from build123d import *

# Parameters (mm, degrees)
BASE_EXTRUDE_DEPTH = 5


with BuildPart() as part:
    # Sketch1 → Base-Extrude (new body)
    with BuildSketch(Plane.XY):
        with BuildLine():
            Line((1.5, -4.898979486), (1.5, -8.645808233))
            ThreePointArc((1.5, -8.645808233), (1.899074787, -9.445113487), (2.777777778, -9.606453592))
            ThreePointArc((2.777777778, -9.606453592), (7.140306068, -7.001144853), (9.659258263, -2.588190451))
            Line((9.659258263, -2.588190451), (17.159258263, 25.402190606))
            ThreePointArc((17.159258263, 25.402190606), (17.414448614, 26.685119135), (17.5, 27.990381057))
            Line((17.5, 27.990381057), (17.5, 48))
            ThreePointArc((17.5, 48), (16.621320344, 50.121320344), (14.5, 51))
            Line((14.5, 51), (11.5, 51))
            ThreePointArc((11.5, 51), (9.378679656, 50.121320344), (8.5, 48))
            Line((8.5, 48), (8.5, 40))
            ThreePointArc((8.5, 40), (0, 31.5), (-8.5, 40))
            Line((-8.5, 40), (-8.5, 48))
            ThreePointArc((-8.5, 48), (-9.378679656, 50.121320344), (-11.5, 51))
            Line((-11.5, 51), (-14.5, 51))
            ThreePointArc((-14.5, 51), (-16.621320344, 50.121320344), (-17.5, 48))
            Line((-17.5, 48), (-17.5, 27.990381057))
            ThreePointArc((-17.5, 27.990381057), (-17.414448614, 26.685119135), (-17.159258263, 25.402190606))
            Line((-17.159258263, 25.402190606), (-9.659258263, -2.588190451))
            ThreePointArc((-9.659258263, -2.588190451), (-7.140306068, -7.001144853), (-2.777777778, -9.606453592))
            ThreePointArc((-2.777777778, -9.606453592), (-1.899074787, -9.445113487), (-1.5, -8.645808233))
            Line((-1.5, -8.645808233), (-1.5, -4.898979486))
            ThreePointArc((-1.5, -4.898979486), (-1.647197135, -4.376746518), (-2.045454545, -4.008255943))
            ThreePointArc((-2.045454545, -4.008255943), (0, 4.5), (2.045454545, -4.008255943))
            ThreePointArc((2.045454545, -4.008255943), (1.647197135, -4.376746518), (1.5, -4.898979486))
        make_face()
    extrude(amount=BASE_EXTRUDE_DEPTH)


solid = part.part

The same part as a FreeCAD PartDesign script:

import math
import FreeCAD as App
import Part
import Sketcher

V = App.Vector
Q = App.Units.Quantity

doc = App.newDocument("Part")
body = doc.addObject("PartDesign::Body", "Body")

# Sketch on XY plane
sketch1 = doc.addObject("Sketcher::SketchObject", "Sketch")
body.addObject(sketch1)
sketch1.AttachmentSupport = (doc.XY_Plane, [""])
sketch1.MapMode = "FlatFace"
sketch1.addGeometry([
    Part.LineSegment(V(1.5, -4.9, 0), V(1.5, -8.6, 0)),  # 0
    Part.ArcOfCircle(Part.Circle(V(2.5, -8.6, 0), V(0, 0, 1), 1), math.radians(180), math.radians(286)),  # 1
    Part.ArcOfCircle(Part.Circle(V(0, 0, 0), V(0, 0, 1), 10), math.radians(-74), math.radians(-15)),  # 2
    Part.LineSegment(V(9.7, -2.6, 0), V(17.2, 25.4, 0)),  # 3
    Part.ArcOfCircle(Part.Circle(V(7.5, 28, 0), V(0, 0, 1), 10), math.radians(-15), math.radians(0)),  # 4
    Part.LineSegment(V(17.5, 28, 0), V(17.5, 48, 0)),  # 5
    Part.ArcOfCircle(Part.Circle(V(14.5, 48, 0), V(0, 0, 1), 3), math.radians(0), math.radians(90)),  # 6
    Part.LineSegment(V(14.5, 51, 0), V(11.5, 51, 0)),  # 7
    Part.ArcOfCircle(Part.Circle(V(11.5, 48, 0), V(0, 0, 1), 3), math.radians(90), math.radians(180)),  # 8
    Part.LineSegment(V(8.5, 48, 0), V(8.5, 40, 0)),  # 9
    Part.ArcOfCircle(Part.Circle(V(0, 40, 0), V(0, 0, 1), 8.5), math.radians(180), math.radians(360)),  # 10
    Part.LineSegment(V(-8.5, 40, 0), V(-8.5, 48, 0)),  # 11
    Part.ArcOfCircle(Part.Circle(V(-11.5, 48, 0), V(0, 0, 1), 3), math.radians(0), math.radians(90)),  # 12
    Part.LineSegment(V(-11.5, 51, 0), V(-14.5, 51, 0)),  # 13
    Part.ArcOfCircle(Part.Circle(V(-14.5, 48, 0), V(0, 0, 1), 3), math.radians(90), math.radians(180)),  # 14
    Part.LineSegment(V(-17.5, 48, 0), V(-17.5, 28, 0)),  # 15
    Part.ArcOfCircle(Part.Circle(V(-7.5, 28, 0), V(0, 0, 1), 10), math.radians(180), math.radians(195)),  # 16
    Part.LineSegment(V(-17.2, 25.4, 0), V(-9.7, -2.6, 0)),  # 17
    Part.ArcOfCircle(Part.Circle(V(0, 0, 0), V(0, 0, 1), 10), math.radians(-165), math.radians(-106)),  # 18
    Part.ArcOfCircle(Part.Circle(V(-2.5, -8.6, 0), V(0, 0, 1), 1), math.radians(-106), math.radians(0)),  # 19
    Part.LineSegment(V(-1.5, -8.6, 0), V(-1.5, -4.9, 0)),  # 20
    Part.ArcOfCircle(Part.Circle(V(-2.5, -4.9, 0), V(0, 0, 1), 1), math.radians(0), math.radians(63)),  # 21
    Part.ArcOfCircle(Part.Circle(V(0, 0, 0), V(0, 0, 1), 4.5), math.radians(-63), math.radians(243)),  # 22
    Part.ArcOfCircle(Part.Circle(V(2.5, -4.9, 0), V(0, 0, 1), 1), math.radians(117), math.radians(180)),  # 23
], False)
sketch1.addConstraint([
    Sketcher.Constraint("Tangent", 0, 2, 1, 1),
    Sketcher.Constraint("Tangent", 1, 2, 2, 1),
    Sketcher.Constraint("Tangent", 2, 2, 3, 1),
    Sketcher.Constraint("Tangent", 3, 2, 4, 1),
    Sketcher.Constraint("Tangent", 4, 2, 5, 1),
    Sketcher.Constraint("Tangent", 5, 2, 6, 1),
    Sketcher.Constraint("Tangent", 6, 2, 7, 1),
    Sketcher.Constraint("Tangent", 7, 2, 8, 1),
    Sketcher.Constraint("Tangent", 8, 2, 9, 1),
    Sketcher.Constraint("Tangent", 9, 2, 10, 2),
    Sketcher.Constraint("Tangent", 10, 1, 11, 1),
    Sketcher.Constraint("Tangent", 11, 2, 12, 1),
    Sketcher.Constraint("Tangent", 12, 2, 13, 1),
    Sketcher.Constraint("Tangent", 13, 2, 14, 1),
    Sketcher.Constraint("Tangent", 14, 2, 15, 1),
    Sketcher.Constraint("Tangent", 15, 2, 16, 1),
    Sketcher.Constraint("Tangent", 16, 2, 17, 1),
    Sketcher.Constraint("Tangent", 17, 2, 18, 1),
    Sketcher.Constraint("Tangent", 18, 2, 19, 1),
    Sketcher.Constraint("Tangent", 19, 2, 20, 1),
    Sketcher.Constraint("Tangent", 20, 2, 21, 1),
    Sketcher.Constraint("Tangent", 21, 2, 22, 2),
    Sketcher.Constraint("Tangent", 22, 1, 23, 1),
    Sketcher.Constraint("Tangent", 23, 2, 0, 1),
    Sketcher.Constraint("Vertical", 0),
    Sketcher.Constraint("Vertical", 5),
    Sketcher.Constraint("Horizontal", 7),
    Sketcher.Constraint("Vertical", 9),
    Sketcher.Constraint("Vertical", 11),
    Sketcher.Constraint("Horizontal", 13),
    Sketcher.Constraint("Vertical", 15),
    Sketcher.Constraint("Vertical", 20),
    Sketcher.Constraint("Coincident", 2, 3, -1, 1),
    Sketcher.Constraint("Coincident", 18, 3, -1, 1),
    Sketcher.Constraint("Coincident", 22, 3, -1, 1),
    Sketcher.Constraint("Equal", 2, 4),
    Sketcher.Constraint("Equal", 6, 8),
    Sketcher.Constraint("Equal", 8, 12),
    Sketcher.Constraint("Equal", 12, 14),
    Sketcher.Constraint("Equal", 4, 16),
    Sketcher.Constraint("Equal", 16, 18),
    Sketcher.Constraint("Equal", 1, 19),
    Sketcher.Constraint("Equal", 19, 21),
    Sketcher.Constraint("Equal", 21, 23),
    Sketcher.Constraint("Symmetric", 8, 3, 12, 3, -2),
    Sketcher.Constraint("Symmetric", 4, 3, 16, 3, -2),
    Sketcher.Constraint("Horizontal", 1, 3, 19, 3),
    Sketcher.Constraint("Radius", 1, Q("1 mm")),
    Sketcher.Constraint("Radius", 2, Q("10 mm")),
    Sketcher.Constraint("Radius", 6, Q("3 mm")),
    Sketcher.Constraint("Radius", 10, Q("8.5 mm")),
    Sketcher.Constraint("Radius", 22, Q("4.5 mm")),
    Sketcher.Constraint("DistanceX", 7, 2, 7, 1, Q("3 mm")),
    Sketcher.Constraint("DistanceY", 9, 2, 9, 1, Q("8 mm")),
    Sketcher.Constraint("Angle", 3, Q("75 deg")),
    Sketcher.Constraint("DistanceY", -1, 1, 6, 3, Q("48 mm")),
    Sketcher.Constraint("DistanceX", 1, 3, 4, 3, Q("5 mm")),
])
pad1 = doc.addObject("PartDesign::Pad", "Pad")
body.addObject(pad1)
pad1.Profile = sketch1
pad1.Length = 5

doc.recompute()
